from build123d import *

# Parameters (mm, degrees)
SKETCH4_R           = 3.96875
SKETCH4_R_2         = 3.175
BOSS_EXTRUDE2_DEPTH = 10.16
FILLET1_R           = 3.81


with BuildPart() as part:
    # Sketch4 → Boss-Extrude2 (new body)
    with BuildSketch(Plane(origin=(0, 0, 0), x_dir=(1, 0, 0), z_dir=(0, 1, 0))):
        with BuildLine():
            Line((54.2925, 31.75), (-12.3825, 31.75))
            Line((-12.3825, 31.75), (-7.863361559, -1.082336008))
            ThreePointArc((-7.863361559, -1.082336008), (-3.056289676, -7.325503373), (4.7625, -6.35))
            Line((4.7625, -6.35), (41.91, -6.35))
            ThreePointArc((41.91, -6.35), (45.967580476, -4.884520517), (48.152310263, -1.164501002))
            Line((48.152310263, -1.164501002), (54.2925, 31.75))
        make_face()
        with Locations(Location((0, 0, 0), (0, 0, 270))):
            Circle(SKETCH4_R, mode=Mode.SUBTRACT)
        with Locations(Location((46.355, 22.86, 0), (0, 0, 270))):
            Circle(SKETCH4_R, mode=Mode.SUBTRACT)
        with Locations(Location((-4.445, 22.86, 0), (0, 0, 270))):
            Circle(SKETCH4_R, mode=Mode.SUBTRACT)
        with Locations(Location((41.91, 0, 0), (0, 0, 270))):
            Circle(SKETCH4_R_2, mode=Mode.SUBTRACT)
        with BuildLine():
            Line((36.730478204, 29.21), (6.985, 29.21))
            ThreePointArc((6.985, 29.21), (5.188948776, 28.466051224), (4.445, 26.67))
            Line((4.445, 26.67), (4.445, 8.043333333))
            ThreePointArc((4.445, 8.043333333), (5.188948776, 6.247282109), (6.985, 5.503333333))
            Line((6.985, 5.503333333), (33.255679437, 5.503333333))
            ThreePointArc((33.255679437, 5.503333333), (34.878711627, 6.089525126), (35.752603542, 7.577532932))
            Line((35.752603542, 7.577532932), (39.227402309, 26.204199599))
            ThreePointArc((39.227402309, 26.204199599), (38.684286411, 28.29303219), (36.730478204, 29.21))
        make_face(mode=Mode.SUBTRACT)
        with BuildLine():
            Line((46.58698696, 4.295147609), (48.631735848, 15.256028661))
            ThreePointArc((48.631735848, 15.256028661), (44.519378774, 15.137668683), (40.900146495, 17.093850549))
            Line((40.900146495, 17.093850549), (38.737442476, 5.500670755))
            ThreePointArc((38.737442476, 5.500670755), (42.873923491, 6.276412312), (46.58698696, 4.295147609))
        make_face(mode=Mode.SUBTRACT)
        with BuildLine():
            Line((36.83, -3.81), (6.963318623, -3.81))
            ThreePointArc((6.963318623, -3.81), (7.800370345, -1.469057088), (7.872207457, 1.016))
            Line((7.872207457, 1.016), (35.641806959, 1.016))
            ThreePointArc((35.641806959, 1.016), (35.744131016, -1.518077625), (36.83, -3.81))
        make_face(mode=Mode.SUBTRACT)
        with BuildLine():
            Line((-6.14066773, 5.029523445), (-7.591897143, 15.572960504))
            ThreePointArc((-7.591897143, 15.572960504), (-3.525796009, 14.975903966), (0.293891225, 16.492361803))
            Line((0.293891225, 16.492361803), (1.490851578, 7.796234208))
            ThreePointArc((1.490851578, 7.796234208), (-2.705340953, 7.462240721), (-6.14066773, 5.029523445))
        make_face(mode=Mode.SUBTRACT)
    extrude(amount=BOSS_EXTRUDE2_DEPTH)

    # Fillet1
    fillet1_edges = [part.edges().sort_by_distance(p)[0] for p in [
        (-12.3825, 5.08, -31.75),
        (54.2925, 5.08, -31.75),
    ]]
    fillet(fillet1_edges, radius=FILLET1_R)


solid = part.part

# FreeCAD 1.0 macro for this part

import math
import FreeCAD as App
import Part
import Sketcher
Q = App.Units.Quantity


def edges_at(feature, points):
    """Names of the edges that pass closest to the given points."""
    edges = feature.Shape.Edges
    near = lambda p: min(range(len(edges)), key=lambda i: edges[i].distToShape(Part.Vertex(*p))[0])
    return sorted({f"Edge{near(p) + 1}" for p in points})

doc = App.newDocument("Part")
body = doc.addObject("PartDesign::Body", "Body")

# Sketch on XZ plane
sketch1 = doc.addObject("Sketcher::SketchObject", "Sketch")
body.addObject(sketch1)
sketch1.AttachmentSupport = (doc.XZ_Plane, [""])
sketch1.MapMode = "FlatFace"
sketch1.addGeometry(Part.LineSegment(App.Vector(54.2925, -31.75, 0), App.Vector(-12.3825, -31.75, 0)), False)
sketch1.addGeometry(Part.LineSegment(App.Vector(-12.3825, -31.75, 0), App.Vector(-7.863362, 1.082336, 0)), False)
sketch1.addGeometry(Part.ArcOfCircle(Part.Circle(App.Vector(0, 0, 0), App.Vector(0, 0, 1), 7.9375), math.radians(53.130102), math.radians(172.162887)), False)
sketch1.addGeometry(Part.LineSegment(App.Vector(4.7625, 6.35, 0), App.Vector(41.91, 6.35, 0)), False)
sketch1.addGeometry(Part.ArcOfCircle(Part.Circle(App.Vector(41.91, 0, 0), App.Vector(0, 0, 1), 6.35), math.radians(10.567046), math.radians(90)), False)
sketch1.addGeometry(Part.LineSegment(App.Vector(48.15231, 1.164501, 0), App.Vector(54.2925, -31.75, 0)), False)
sketch1.addGeometry(Part.Circle(App.Vector(0, 0, 0), App.Vector(0, 0, 1), 3.96875), False)
sketch1.addGeometry(Part.ArcOfCircle(Part.Circle(App.Vector(0, 0, 0), App.Vector(0, 0, 1), 7.9375), math.radians(-140.680756), math.radians(-79.174188)), False)
sketch1.addGeometry(Part.LineSegment(App.Vector(-6.140668, -5.029523, 0), App.Vector(-7.591897, -15.572961, 0)), False)
sketch1.addGeometry(Part.ArcOfCircle(Part.Circle(App.Vector(-4.445, -22.86, 0), App.Vector(0, 0, 1), 7.9375), math.radians(53.342828), math.radians(113.357029)), False)
sketch1.addGeometry(Part.LineSegment(App.Vector(0.293891, -16.492362, 0), App.Vector(1.490852, -7.796234, 0)), False)
sketch1.addGeometry(Part.ArcOfCircle(Part.Circle(App.Vector(41.91, 0, 0), App.Vector(0, 0, 1), 6.35), math.radians(143.130102), math.radians(189.206896)), False)
sketch1.addGeometry(Part.LineSegment(App.Vector(36.83, 3.81, 0), App.Vector(6.963319, 3.81, 0)), False)
sketch1.addGeometry(Part.ArcOfCircle(Part.Circle(App.Vector(0, 0, 0), App.Vector(0, 0, 1), 7.9375), math.radians(-7.354035), math.radians(28.685402)), False)
sketch1.addGeometry(Part.LineSegment(App.Vector(7.872207, -1.016, 0), App.Vector(35.641807, -1.016, 0)), False)
sketch1.addGeometry(Part.Circle(App.Vector(41.91, 0, 0), App.Vector(0, 0, 1), 3.175), False)
sketch1.addGeometry(Part.LineSegment(App.Vector(48.631736, -15.256029, 0), App.Vector(46.586987, -4.295148, 0)), False)
sketch1.addGeometry(Part.ArcOfCircle(Part.Circle(App.Vector(41.91, 0, 0), App.Vector(0, 0, 1), 6.35), math.radians(-119.974556), math.radians(-42.563056)), False)
sketch1.addGeometry(Part.LineSegment(App.Vector(38.737442, -5.500671, 0), App.Vector(40.900146, -17.093851, 0)), False)
sketch1.addGeometry(Part.ArcOfCircle(Part.Circle(App.Vector(46.355, -22.86, 0), App.Vector(0, 0, 1), 7.9375), math.radians(73.331561), math.radians(133.410893)), False)
sketch1.addGeometry(Part.Circle(App.Vector(-4.445, -22.86, 0), App.Vector(0, 0, 1), 3.96875), False)
sketch1.addGeometry(Part.LineSegment(App.Vector(6.985, -29.21, 0), App.Vector(36.730478, -29.21, 0)), False)
sketch1.addGeometry(Part.ArcOfCircle(Part.Circle(App.Vector(36.730478, -26.67, 0), App.Vector(0, 0, 1), 2.54), math.radians(-90), math.radians(10.567046)), False)
sketch1.addGeometry(Part.LineSegment(App.Vector(39.227402, -26.2042, 0), App.Vector(35.752604, -7.577533, 0)), False)
sketch1.addGeometry(Part.ArcOfCircle(Part.Circle(App.Vector(33.255679, -8.043333, 0), App.Vector(0, 0, 1), 2.54), math.radians(10.567046), math.radians(90)), False)
sketch1.addGeometry(Part.LineSegment(App.Vector(33.255679, -5.503333, 0), App.Vector(6.985, -5.503333, 0)), False)
sketch1.addGeometry(Part.ArcOfCircle(Part.Circle(App.Vector(6.985, -8.043333, 0), App.Vector(0, 0, 1), 2.54), math.radians(90), math.radians(180)), False)
sketch1.addGeometry(Part.LineSegment(App.Vector(4.445, -8.043333, 0), App.Vector(4.445, -26.67, 0)), False)
sketch1.addGeometry(Part.ArcOfCircle(Part.Circle(App.Vector(6.985, -26.67, 0), App.Vector(0, 0, 1), 2.54), math.radians(-180), math.radians(-90)), False)
sketch1.addGeometry(Part.Circle(App.Vector(46.355, -22.86, 0), App.Vector(0, 0, 1), 3.96875), False)
sketch1.addConstraint(Sketcher.Constraint("Coincident", 0, 2, 1, 1))
sketch1.addConstraint(Sketcher.Constraint("Tangent", 1, 2, 2, 2))
sketch1.addConstraint(Sketcher.Constraint("Coincident", 2, 1, 3, 1))
sketch1.addConstraint(Sketcher.Constraint("Tangent", 3, 2, 4, 2))
sketch1.addConstraint(Sketcher.Constraint("Tangent", 4, 1, 5, 1))
sketch1.addConstraint(Sketcher.Constraint("Coincident", 5, 2, 0, 1))
sketch1.addConstraint(Sketcher.Constraint("Coincident", 7, 1, 8, 1))
sketch1.addConstraint(Sketcher.Constraint("Coincident", 8, 2, 9, 2))
sketch1.addConstraint(Sketcher.Constraint("Coincident", 9, 1, 10, 1))
sketch1.addConstraint(Sketcher.Constraint("Coincident", 10, 2, 7, 2))
sketch1.addConstraint(Sketcher.Constraint("Coincident", 11, 1, 12, 1))
sketch1.addConstraint(Sketcher.Constraint("Coincident", 12, 2, 13, 2))
sketch1.addConstraint(Sketcher.Constraint("Coincident", 13, 1, 14, 1))
sketch1.addConstraint(Sketcher.Constraint("Coincident", 14, 2, 11, 2))
sketch1.addConstraint(Sketcher.Constraint("Coincident", 16, 2, 17, 2))
sketch1.addConstraint(Sketcher.Constraint("Coincident", 17, 1, 18, 1))
sketch1.addConstraint(Sketcher.Constraint("Coincident", 18, 2, 19, 2))
sketch1.addConstraint(Sketcher.Constraint("Coincident", 19, 1, 16, 1))
sketch1.addConstraint(Sketcher.Constraint("Tangent", 21, 2, 22, 1))
sketch1.addConstraint(Sketcher.Constraint("Tangent", 22, 2, 23, 1))
sketch1.addConstraint(Sketcher.Constraint("Tangent", 23, 2, 24, 1))
sketch1.addConstraint(Sketcher.Constraint("Tangent", 24, 2, 25, 1))
sketch1.addConstraint(Sketcher.Constraint("Tangent", 25, 2, 26, 1))
sketch1.addConstraint(Sketcher.Constraint("Tangent", 26, 2, 27, 1))
sketch1.addConstraint(Sketcher.Constraint("Tangent", 27, 2, 28, 1))
sketch1.addConstraint(Sketcher.Constraint("Tangent", 28, 2, 21, 1))
sketch1.addConstraint(Sketcher.Constraint("Horizontal", 0))
sketch1.addConstraint(Sketcher.Constraint("Horizontal", 3))
sketch1.addConstraint(Sketcher.Constraint("Horizontal", 12))
sketch1.addConstraint(Sketcher.Constraint("Horizontal", 14))
sketch1.addConstraint(Sketcher.Constraint("Horizontal", 21))
sketch1.addConstraint(Sketcher.Constraint("Horizontal", 25))
sketch1.addConstraint(Sketcher.Constraint("Vertical", 27))
sketch1.addConstraint(Sketcher.Constraint("Coincident", 2, 3, -1, 1))
sketch1.addConstraint(Sketcher.Constraint("Coincident", 6, 3, -1, 1))
sketch1.addConstraint(Sketcher.Constraint("Coincident", 7, 3, -1, 1))
sketch1.addConstraint(Sketcher.Constraint("Coincident", 13, 3, -1, 1))
sketch1.addConstraint(Sketcher.Constraint("Coincident", 11, 3, 4, 3))
sketch1.addConstraint(Sketcher.Constraint("Coincident", 15, 3, 4, 3))
sketch1.addConstraint(Sketcher.Constraint("Coincident", 17, 3, 4, 3))
sketch1.addConstraint(Sketcher.Constraint("Coincident", 20, 3, 9, 3))
sketch1.addConstraint(Sketcher.Constraint("Coincident", 29, 3, 19, 3))
sketch1.addConstraint(Sketcher.Constraint("Equal", 2, 7))
sketch1.addConstraint(Sketcher.Constraint("Equal", 7, 9))
sketch1.addConstraint(Sketcher.Constraint("Equal", 4, 11))
sketch1.addConstraint(Sketcher.Constraint("Equal", 9, 13))
sketch1.addConstraint(Sketcher.Constraint("Equal", 11, 17))
sketch1.addConstraint(Sketcher.Constraint("Equal", 13, 19))
sketch1.addConstraint(Sketcher.Constraint("Equal", 6, 20))
sketch1.addConstraint(Sketcher.Constraint("Equal", 22, 24))
sketch1.addConstraint(Sketcher.Constraint("Equal", 24, 26))
sketch1.addConstraint(Sketcher.Constraint("Equal", 26, 28))
sketch1.addConstraint(Sketcher.Constraint("Equal", 20, 29))
sketch1.addConstraint(Sketcher.Constraint("PointOnObject", 4, 3, -1))
sketch1.addConstraint(Sketcher.Constraint("Parallel", 1, 8))
sketch1.addConstraint(Sketcher.Constraint("Parallel", 8, 10))
sketch1.addConstraint(Sketcher.Constraint("Parallel", 5, 16))
sketch1.addConstraint(Sketcher.Constraint("Parallel", 16, 18))
sketch1.addConstraint(Sketcher.Constraint("Parallel", 18, 23))
sketch1.addConstraint(Sketcher.Constraint("Horizontal", 9, 3, 19, 3))
sketch1.addConstraint(Sketcher.Constraint("Radius", 22, Q("0.1 in")))
sketch1.addConstraint(Sketcher.Constraint("Diameter", 15, Q("0.25 in")))
sketch1.addConstraint(Sketcher.Constraint("Radius", 4, Q("0.25 in")))
sketch1.addConstraint(Sketcher.Constraint("Diameter", 6, Q("0.3125 in")))
sketch1.addConstraint(Sketcher.Constraint("Radius", 2, Q("0.3125 in")))
sketch1.addConstraint(Sketcher.Constraint("DistanceX", 9, 3, 19, 3, Q("2 in")))
sketch1.addConstraint(Sketcher.Constraint("DistanceY", 9, 3, -1, 1, Q("0.9 in")))
sketch1.addConstraint(Sketcher.Constraint("DistanceY", 0, 2, 28, 3, Q("0.2 in")))
sketch1.addConstraint(Sketcher.Constraint("DistanceX", 11, 1, 3, 2, Q("0.2 in")))
sketch1.addConstraint(Sketcher.Constraint("DistanceX", 0, 2, 0, 1, Q("2.625 in")))
sketch1.addConstraint(Sketcher.Constraint("DistanceX", -1, 1, 4, 3, Q("1.65 in")))
sketch1.addConstraint(Sketcher.Constraint("DistanceY", 22, 3, -1, 1, Q("1.05 in")))
sketch1.addConstraint(Sketcher.Constraint("DistanceY", 13, 1, -1, 1, Q("0.04 in")))
sketch1.addConstraint(Sketcher.Constraint("DistanceX", 9, 3, 26, 3, Q("0.45 in")))
sketch1.addConstraint(Sketcher.Constraint("DistanceX", 9, 3, -1, 1, Q("0.175 in")))
sketch1.addConstraint(Sketcher.Constraint("DistanceX", 0, 2, 20, 3, Q("0.3125 in")))
sketch1.addConstraint(Sketcher.Constraint("DistanceX", 21, 1, 21, 2, 29.745478))
sketch1.addConstraint(Sketcher.Constraint("DistanceX", 25, 2, 25, 1, 26.270679))
sketch1.addConstraint(Sketcher.Constraint("DistanceY", 9, 1, 8, 2, 0.919401))
sketch1.addConstraint(Sketcher.Constraint("DistanceY", 26, 3, 10, 2, 0.247099))
sketch1.addConstraint(Sketcher.Constraint("Distance", 18, 11.793181))
sketch1.addConstraint(Sketcher.Constraint("DistanceY", 19, 1, -1, 1, 15.256029))
pad1 = doc.addObject("PartDesign::Pad", "Pad")
body.addObject(pad1)
pad1.Profile = sketch1
pad1.Length = Q("0.4 in")
pad1.Reversed = True
doc.recompute()

fillet = doc.addObject("PartDesign::Fillet", "Fillet")
body.addObject(fillet)
fillet.Base = (pad1, edges_at(pad1, [(-12.383, 5.08, -31.75), (54.292, 5.08, -31.75)]))
fillet.Radius = Q("0.15 in")

doc.recompute()
